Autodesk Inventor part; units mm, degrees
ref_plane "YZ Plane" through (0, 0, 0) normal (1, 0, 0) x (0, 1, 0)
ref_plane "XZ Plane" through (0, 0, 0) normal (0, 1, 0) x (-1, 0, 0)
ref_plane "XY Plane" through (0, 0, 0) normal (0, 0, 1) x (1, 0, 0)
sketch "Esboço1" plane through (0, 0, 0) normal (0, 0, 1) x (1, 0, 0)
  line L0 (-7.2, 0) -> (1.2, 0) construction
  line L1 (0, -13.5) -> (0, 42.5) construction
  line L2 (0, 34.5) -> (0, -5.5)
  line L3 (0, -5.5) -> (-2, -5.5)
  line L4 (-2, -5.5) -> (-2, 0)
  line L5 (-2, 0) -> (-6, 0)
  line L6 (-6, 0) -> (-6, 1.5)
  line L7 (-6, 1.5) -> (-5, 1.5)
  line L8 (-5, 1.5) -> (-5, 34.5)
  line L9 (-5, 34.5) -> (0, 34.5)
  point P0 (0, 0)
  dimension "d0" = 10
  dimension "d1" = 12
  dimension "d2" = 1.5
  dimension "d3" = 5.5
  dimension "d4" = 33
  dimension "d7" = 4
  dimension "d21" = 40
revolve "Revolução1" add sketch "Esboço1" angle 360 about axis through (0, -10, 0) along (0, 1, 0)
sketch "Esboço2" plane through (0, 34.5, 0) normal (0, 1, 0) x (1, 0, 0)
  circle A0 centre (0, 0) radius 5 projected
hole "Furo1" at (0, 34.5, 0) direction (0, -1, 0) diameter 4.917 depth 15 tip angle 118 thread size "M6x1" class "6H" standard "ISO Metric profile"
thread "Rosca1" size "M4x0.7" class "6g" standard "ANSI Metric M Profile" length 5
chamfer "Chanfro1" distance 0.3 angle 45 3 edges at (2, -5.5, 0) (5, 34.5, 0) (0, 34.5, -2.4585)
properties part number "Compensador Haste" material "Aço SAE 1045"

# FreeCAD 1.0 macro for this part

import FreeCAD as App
import Part
import Sketcher
from FreeCAD import Vector


def edges_at(feature, points):
    """Names of the edges that pass closest to the given points."""
    edges = feature.Shape.Edges
    near = lambda p: min(range(len(edges)), key=lambda i: edges[i].distToShape(Part.Vertex(*p))[0])
    return sorted({f"Edge{near(p) + 1}" for p in points})

doc = App.newDocument("Part")
body = doc.addObject("PartDesign::Body", "Body")

# Sketch on XY plane
sketch1 = body.newObject("Sketcher::SketchObject", "Sketch")
sketch1.AttachmentSupport = (doc.getObject("XY_Plane"), [""])
sketch1.MapMode = "FlatFace"
sketch1.addGeometry(Part.LineSegment(Vector(0, -5.5, 0), Vector(0, 34.5, 0)), False)
sketch1.addGeometry(Part.LineSegment(Vector(0, 34.5, 0), Vector(-5, 34.5, 0)), False)
sketch1.addGeometry(Part.LineSegment(Vector(-5, 34.5, 0), Vector(-5, 1.5, 0)), False)
sketch1.addGeometry(Part.LineSegment(Vector(-5, 1.5, 0), Vector(-6, 1.5, 0)), False)
sketch1.addGeometry(Part.LineSegment(Vector(-6, 1.5, 0), Vector(-6, 0, 0)), False)
sketch1.addGeometry(Part.LineSegment(Vector(-6, 0, 0), Vector(-2, 0, 0)), False)
sketch1.addGeometry(Part.LineSegment(Vector(-2, 0, 0), Vector(-2, -5.5, 0)), False)
sketch1.addGeometry(Part.LineSegment(Vector(-2, -5.5, 0), Vector(0, -5.5, 0)), False)
sketch1.addConstraint(Sketcher.Constraint("Coincident", 0, 2, 1, 1))
sketch1.addConstraint(Sketcher.Constraint("Coincident", 1, 2, 2, 1))
sketch1.addConstraint(Sketcher.Constraint("Coincident", 2, 2, 3, 1))
sketch1.addConstraint(Sketcher.Constraint("Coincident", 3, 2, 4, 1))
sketch1.addConstraint(Sketcher.Constraint("Coincident", 4, 2, 5, 1))
sketch1.addConstraint(Sketcher.Constraint("Coincident", 5, 2, 6, 1))
sketch1.addConstraint(Sketcher.Constraint("Coincident", 6, 2, 7, 1))
sketch1.addConstraint(Sketcher.Constraint("Coincident", 7, 2, 0, 1))
sketch1.addConstraint(Sketcher.Constraint("Vertical", 0))
sketch1.addConstraint(Sketcher.Constraint("Horizontal", 1))
sketch1.addConstraint(Sketcher.Constraint("Vertical", 2))
sketch1.addConstraint(Sketcher.Constraint("Horizontal", 3))
sketch1.addConstraint(Sketcher.Constraint("Vertical", 4))
sketch1.addConstraint(Sketcher.Constraint("Horizontal", 5))
sketch1.addConstraint(Sketcher.Constraint("Vertical", 6))
sketch1.addConstraint(Sketcher.Constraint("Horizontal", 7))
sketch1.addConstraint(Sketcher.Constraint("PointOnObject", 0, 2, -2))
sketch1.addConstraint(Sketcher.Constraint("PointOnObject", 4, 2, -1))
sketch1.addConstraint(Sketcher.Constraint("DistanceX", 5, 1, 5, 2, 4.0))
sketch1.addConstraint(Sketcher.Constraint("DistanceY", 0, 1, 0, 2, 40.0))
sketch1.addConstraint(Sketcher.Constraint("DistanceY", 2, 2, 2, 1, 33.0))
sketch1.addConstraint(Sketcher.Constraint("DistanceY", 4, 2, 4, 1, 1.5))
sketch1.addConstraint(Sketcher.Constraint("DistanceX", 1, 2, 1, 1, 5.0))
sketch1.addConstraint(Sketcher.Constraint("DistanceX", 3, 2, 3, 1, 1.0))
revolution = body.newObject("PartDesign::Revolution", "Revolution")
revolution.Profile = sketch1
revolution.ReferenceAxis = (sketch1, ["V_Axis"])
revolution.Angle = 360

# Sketch on XZ plane
sketch2 = body.newObject("Sketcher::SketchObject", "Sketch001")
sketch2.AttachmentSupport = (doc.getObject("XZ_Plane"), [""])
sketch2.MapMode = "FlatFace"
sketch2.AttachmentOffset = App.Placement(Vector(0, 0, -34.5), App.Rotation())
sketch2.addGeometry(Part.Circle(Vector(0, 0, 0), Vector(0, 0, 1), 2.4585), False)
sketch2.addConstraint(Sketcher.Constraint("Coincident", 0, 3, -1, 1))
sketch2.addConstraint(Sketcher.Constraint("Diameter", 0, 4.917))
doc.recompute()
hole = body.newObject("PartDesign::Hole", "Hole")
hole.Profile = sketch2
hole.ThreadType = "None"
hole.Diameter = 4.917
hole.DepthType = "Dimension"
hole.Depth = 15
hole.DrillPoint = "Angled"
hole.DrillPointAngle = 118
hole.Reversed = True
doc.recompute()

chamfer = body.newObject("PartDesign::Chamfer", "Chamfer")
chamfer.Base = (hole, edges_at(hole, [(2, -5.5, 0), (5, 34.5, 0), (0, 34.5, -2.458)]))
chamfer.Size = 0.3

doc.recompute()
